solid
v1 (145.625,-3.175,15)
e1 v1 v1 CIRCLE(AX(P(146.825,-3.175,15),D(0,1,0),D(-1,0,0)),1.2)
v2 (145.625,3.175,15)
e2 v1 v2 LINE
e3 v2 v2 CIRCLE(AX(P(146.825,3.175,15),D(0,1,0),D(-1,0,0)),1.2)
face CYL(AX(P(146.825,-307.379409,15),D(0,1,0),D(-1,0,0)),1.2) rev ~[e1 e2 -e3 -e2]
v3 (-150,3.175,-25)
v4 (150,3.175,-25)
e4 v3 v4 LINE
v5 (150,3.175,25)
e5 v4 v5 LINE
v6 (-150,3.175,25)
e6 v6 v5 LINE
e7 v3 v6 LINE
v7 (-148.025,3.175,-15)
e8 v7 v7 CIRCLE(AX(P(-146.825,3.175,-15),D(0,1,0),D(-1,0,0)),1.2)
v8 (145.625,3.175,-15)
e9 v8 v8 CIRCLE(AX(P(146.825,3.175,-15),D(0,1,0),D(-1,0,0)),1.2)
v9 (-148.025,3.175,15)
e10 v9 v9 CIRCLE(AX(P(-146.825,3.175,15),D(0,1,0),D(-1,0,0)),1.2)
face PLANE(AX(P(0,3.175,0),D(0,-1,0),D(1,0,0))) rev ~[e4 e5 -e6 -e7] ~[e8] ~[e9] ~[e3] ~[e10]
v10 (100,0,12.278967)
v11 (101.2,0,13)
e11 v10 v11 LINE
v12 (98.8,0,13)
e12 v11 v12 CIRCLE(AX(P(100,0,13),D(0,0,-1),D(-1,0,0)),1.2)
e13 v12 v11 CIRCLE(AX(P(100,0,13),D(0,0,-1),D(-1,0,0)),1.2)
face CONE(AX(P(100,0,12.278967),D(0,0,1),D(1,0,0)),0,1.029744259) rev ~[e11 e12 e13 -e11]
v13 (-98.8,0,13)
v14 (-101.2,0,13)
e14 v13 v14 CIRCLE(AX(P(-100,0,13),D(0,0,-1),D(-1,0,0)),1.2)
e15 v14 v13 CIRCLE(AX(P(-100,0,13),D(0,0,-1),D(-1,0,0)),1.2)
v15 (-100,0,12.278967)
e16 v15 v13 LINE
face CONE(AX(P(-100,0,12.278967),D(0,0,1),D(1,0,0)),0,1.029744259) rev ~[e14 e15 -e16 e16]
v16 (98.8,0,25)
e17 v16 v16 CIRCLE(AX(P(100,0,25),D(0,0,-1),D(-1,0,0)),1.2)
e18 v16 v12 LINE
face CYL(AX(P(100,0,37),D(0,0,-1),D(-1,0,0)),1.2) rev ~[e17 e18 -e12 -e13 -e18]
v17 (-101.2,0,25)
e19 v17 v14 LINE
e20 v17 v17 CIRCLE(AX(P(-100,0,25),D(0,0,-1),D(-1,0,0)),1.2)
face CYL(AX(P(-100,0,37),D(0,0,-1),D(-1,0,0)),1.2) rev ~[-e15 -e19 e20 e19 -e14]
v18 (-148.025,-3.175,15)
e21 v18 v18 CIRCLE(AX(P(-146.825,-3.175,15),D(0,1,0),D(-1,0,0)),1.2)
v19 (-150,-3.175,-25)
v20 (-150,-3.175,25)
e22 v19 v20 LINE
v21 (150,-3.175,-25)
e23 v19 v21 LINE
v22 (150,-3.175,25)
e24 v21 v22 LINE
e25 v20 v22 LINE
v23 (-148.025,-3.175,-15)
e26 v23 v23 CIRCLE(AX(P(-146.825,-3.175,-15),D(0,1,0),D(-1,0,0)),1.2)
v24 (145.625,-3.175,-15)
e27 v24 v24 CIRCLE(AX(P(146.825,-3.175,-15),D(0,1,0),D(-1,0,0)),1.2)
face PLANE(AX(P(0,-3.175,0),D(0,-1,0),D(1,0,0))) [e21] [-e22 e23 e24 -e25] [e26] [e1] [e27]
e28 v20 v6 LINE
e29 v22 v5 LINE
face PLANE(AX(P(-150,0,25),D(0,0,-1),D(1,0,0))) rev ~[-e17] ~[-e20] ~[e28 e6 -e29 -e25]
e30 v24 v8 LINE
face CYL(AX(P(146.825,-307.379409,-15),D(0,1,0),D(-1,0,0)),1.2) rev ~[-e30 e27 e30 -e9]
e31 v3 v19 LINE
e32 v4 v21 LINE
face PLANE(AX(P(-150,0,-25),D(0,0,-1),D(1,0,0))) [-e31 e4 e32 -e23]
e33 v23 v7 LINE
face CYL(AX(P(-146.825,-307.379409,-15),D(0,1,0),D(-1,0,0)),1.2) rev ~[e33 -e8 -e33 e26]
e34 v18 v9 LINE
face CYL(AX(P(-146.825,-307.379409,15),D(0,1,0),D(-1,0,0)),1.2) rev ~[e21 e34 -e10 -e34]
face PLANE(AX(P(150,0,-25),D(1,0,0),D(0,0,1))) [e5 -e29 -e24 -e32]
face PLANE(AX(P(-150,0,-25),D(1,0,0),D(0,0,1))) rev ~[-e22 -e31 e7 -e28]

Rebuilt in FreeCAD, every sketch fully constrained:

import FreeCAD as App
import Part
import Sketcher

V = App.Vector
Q = App.Units.Quantity


def add_polygon(sketch, points):
    """Adds a closed chain of lines whose ends are joined by coincident constraints."""
    first, n = sketch.GeometryCount, len(points)
    for a, b in zip(points, points[1:] + points[:1]):
        sketch.addGeometry(Part.LineSegment(App.Vector(*a, 0), App.Vector(*b, 0)), False)
    for i in range(n):
        sketch.addConstraint(Sketcher.Constraint("Coincident", first + i, 2, first + (i + 1) % n, 1))

doc = App.newDocument("Part")
body = doc.addObject("PartDesign::Body", "Body")

# Sketch on XZ plane
sketch1 = doc.addObject("Sketcher::SketchObject", "Sketch")
body.addObject(sketch1)
sketch1.AttachmentSupport = (doc.XZ_Plane, [""])
sketch1.MapMode = "FlatFace"
add_polygon(sketch1, [(-150, 25), (-150, -25), (150, -25), (150, 25)])  # lines 0-3
sketch1.addConstraint([
    Sketcher.Constraint("Vertical", 0),
    Sketcher.Constraint("Horizontal", 1),
    Sketcher.Constraint("Vertical", 2),
    Sketcher.Constraint("Horizontal", 3),
    Sketcher.Constraint("Symmetric", 0, 2, 2, 2, -1, 1),
    Sketcher.Constraint("DistanceX", 1, 1, 1, 2, Q("300 mm")),
    Sketcher.Constraint("DistanceY", 0, 2, 0, 1, Q("50 mm")),
])
pad1 = doc.addObject("PartDesign::Pad", "Pad")
body.addObject(pad1)
pad1.Profile = sketch1
pad1.Length = 6.35
pad1.Midplane = True

# Sketch on XZ plane
sketch2 = doc.addObject("Sketcher::SketchObject", "Sketch001")
body.addObject(sketch2)
sketch2.AttachmentSupport = (doc.XZ_Plane, [""])
sketch2.MapMode = "FlatFace"
sketch2.AttachmentOffset = App.Placement(V(0, 0, 3.175), App.Rotation())
sketch2.addGeometry([
    Part.Circle(V(-146.8, 15, 0), V(0, 0, 1), 1.2),
    Part.Circle(V(-146.8, -15, 0), V(0, 0, 1), 1.2),
    Part.Circle(V(146.8, 15, 0), V(0, 0, 1), 1.2),
    Part.Circle(V(146.8, -15, 0), V(0, 0, 1), 1.2),
], False)
sketch2.addConstraint([
    Sketcher.Constraint("Equal", 0, 1),
    Sketcher.Constraint("Equal", 1, 2),
    Sketcher.Constraint("Equal", 2, 3),
    Sketcher.Constraint("Symmetric", 1, 3, 2, 3, -1, 1),
    Sketcher.Constraint("Symmetric", 0, 3, 3, 3, -1, 1),
    Sketcher.Constraint("Symmetric", 0, 3, 2, 3, -2),
    Sketcher.Constraint("Diameter", 0, Q("2.4 mm")),
    Sketcher.Constraint("DistanceY", -1, 1, 0, 3, Q("15 mm")),
    Sketcher.Constraint("DistanceX", 0, 3, 2, 3, Q("293.65 mm")),
])
doc.recompute()
hole = doc.addObject("PartDesign::Hole", "Hole")
body.addObject(hole)
hole.Profile = sketch2
hole.ThreadType = "None"
hole.Diameter = 2.4
hole.DepthType = "ThroughAll"

# Sketch on XY plane
sketch3 = doc.addObject("Sketcher::SketchObject", "Sketch002")
body.addObject(sketch3)
sketch3.AttachmentSupport = (doc.XY_Plane, [""])
sketch3.MapMode = "FlatFace"
sketch3.AttachmentOffset = App.Placement(V(0, 0, 25), App.Rotation())
sketch3.addGeometry([
    Part.Circle(V(-100, 0, 0), V(0, 0, 1), 1.2),
    Part.Circle(V(100, 0, 0), V(0, 0, 1), 1.2),
], False)
sketch3.addConstraint([
    Sketcher.Constraint("Equal", 0, 1),
    Sketcher.Constraint("Symmetric", 0, 3, 1, 3, -1, 1),
    Sketcher.Constraint("PointOnObject", 0, 3, -1),
    Sketcher.Constraint("Diameter", 0, Q("2.4 mm")),
    Sketcher.Constraint("DistanceX", 0, 3, -1, 1, Q("100 mm")),
])
doc.recompute()
hole2 = doc.addObject("PartDesign::Hole", "Hole001")
body.addObject(hole2)
hole2.Profile = sketch3
hole2.ThreadType = "None"
hole2.Diameter = 2.4
hole2.DepthType = "Dimension"
hole2.Depth = 12
hole2.DrillPoint = "Angled"
hole2.DrillPointAngle = 118

doc.recompute()
